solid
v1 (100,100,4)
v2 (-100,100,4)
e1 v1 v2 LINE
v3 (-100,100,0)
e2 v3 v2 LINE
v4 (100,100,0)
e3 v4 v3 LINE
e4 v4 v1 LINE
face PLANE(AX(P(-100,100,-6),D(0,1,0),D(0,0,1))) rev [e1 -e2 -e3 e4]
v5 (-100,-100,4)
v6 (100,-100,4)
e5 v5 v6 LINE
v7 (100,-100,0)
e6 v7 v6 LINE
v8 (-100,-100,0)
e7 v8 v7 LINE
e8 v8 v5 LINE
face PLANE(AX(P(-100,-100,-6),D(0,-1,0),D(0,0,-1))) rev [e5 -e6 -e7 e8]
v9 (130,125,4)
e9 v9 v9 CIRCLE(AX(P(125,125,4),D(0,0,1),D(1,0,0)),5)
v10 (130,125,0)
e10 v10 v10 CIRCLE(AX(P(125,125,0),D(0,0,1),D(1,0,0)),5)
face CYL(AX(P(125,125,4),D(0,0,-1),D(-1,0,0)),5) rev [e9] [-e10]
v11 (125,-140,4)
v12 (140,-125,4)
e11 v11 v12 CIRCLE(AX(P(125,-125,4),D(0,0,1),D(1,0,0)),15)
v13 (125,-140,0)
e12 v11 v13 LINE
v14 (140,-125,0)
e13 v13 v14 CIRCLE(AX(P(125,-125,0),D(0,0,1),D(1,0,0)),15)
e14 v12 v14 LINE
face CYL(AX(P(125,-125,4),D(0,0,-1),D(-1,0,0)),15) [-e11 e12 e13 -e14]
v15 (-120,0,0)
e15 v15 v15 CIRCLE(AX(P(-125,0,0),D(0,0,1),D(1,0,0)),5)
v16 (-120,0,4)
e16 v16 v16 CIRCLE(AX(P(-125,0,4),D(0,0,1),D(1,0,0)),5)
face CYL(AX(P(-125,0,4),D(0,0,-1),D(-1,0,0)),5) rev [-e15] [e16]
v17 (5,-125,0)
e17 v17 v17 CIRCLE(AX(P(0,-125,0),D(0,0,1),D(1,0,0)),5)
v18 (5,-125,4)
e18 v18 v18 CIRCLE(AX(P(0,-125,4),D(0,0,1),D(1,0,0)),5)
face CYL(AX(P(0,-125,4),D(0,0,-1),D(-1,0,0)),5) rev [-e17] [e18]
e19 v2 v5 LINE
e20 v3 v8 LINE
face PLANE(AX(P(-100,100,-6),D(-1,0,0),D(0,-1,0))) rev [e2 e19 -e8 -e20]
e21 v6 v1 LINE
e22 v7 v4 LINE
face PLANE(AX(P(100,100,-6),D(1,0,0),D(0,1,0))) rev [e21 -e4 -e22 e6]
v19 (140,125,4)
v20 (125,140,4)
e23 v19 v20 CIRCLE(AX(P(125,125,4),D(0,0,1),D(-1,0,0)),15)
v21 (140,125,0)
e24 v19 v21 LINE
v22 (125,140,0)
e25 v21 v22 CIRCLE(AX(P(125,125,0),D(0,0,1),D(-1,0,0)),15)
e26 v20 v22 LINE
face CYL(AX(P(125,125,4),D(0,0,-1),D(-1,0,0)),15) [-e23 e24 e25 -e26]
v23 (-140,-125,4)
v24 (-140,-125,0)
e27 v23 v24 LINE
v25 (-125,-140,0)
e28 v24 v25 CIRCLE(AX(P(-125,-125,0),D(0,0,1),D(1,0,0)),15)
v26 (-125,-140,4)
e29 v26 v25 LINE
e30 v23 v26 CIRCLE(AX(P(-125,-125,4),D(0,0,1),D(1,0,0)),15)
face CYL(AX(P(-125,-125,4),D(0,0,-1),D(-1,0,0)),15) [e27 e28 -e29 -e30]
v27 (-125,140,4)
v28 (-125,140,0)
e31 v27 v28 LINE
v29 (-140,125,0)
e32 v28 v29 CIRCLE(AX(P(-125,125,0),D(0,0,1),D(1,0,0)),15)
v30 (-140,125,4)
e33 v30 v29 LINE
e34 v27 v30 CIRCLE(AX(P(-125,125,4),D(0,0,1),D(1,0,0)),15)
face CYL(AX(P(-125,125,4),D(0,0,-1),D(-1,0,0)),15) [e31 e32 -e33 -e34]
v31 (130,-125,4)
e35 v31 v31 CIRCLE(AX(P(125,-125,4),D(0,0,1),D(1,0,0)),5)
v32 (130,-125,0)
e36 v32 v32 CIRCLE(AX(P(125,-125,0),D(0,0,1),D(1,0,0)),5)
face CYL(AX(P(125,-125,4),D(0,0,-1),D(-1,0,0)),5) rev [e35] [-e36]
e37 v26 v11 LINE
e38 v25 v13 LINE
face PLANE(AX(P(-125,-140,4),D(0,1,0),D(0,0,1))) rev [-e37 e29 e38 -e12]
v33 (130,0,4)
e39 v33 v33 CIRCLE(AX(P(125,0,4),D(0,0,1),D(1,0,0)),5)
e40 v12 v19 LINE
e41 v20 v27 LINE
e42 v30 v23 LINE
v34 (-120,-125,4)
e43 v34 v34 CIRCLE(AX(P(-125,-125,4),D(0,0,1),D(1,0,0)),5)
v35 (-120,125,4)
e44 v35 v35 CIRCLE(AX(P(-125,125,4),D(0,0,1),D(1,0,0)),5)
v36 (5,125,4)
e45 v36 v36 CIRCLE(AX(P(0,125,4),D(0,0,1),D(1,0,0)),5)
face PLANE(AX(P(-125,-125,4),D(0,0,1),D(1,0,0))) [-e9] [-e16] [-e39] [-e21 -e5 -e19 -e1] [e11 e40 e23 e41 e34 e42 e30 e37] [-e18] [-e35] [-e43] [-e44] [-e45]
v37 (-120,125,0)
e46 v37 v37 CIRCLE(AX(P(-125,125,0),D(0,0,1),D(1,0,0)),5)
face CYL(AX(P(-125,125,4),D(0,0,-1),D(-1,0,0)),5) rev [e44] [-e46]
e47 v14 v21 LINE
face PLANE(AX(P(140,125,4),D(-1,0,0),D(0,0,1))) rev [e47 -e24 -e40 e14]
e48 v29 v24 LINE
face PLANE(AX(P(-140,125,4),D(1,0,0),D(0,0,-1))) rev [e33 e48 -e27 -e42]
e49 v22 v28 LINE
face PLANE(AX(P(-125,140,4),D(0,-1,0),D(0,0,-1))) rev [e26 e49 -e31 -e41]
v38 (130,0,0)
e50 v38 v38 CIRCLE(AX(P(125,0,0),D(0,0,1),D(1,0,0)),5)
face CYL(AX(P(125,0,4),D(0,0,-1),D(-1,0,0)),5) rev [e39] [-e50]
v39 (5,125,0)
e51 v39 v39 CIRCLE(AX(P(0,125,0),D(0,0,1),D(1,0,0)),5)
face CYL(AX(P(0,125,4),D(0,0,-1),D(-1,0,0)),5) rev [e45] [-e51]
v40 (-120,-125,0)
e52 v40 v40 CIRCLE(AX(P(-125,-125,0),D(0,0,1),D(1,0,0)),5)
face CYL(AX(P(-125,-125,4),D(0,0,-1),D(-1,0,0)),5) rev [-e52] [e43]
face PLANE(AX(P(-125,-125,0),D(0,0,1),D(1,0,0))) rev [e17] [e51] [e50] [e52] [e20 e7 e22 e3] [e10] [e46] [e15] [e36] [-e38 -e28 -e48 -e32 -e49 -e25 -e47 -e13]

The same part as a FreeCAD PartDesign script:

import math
import FreeCAD as App
import Part
import Sketcher
Q = App.Units.Quantity

doc = App.newDocument("Part")
body = doc.addObject("PartDesign::Body", "Body")

# Sketch on XY plane
sketch1 = body.newObject("Sketcher::SketchObject", "Sketch")
sketch1.AttachmentSupport = (doc.getObject("XY_Plane"), [""])
sketch1.MapMode = "FlatFace"
sketch1.addGeometry([
    Part.LineSegment(App.Vector(125, 140, 0), App.Vector(-125, 140, 0)),  # 0
    Part.ArcOfCircle(Part.Circle(App.Vector(-125, 125, 0), App.Vector(0, 0, 1), 15), math.radians(90), math.radians(180)),  # 1
    Part.LineSegment(App.Vector(-140, 125, 0), App.Vector(-140, -125, 0)),  # 2
    Part.ArcOfCircle(Part.Circle(App.Vector(-125, -125, 0), App.Vector(0, 0, 1), 15), math.radians(180), math.radians(270)),  # 3
    Part.LineSegment(App.Vector(-125, -140, 0), App.Vector(125, -140, 0)),  # 4
    Part.ArcOfCircle(Part.Circle(App.Vector(125, -125, 0), App.Vector(0, 0, 1), 15), math.radians(-90), math.radians(0)),  # 5
    Part.LineSegment(App.Vector(140, -125, 0), App.Vector(140, 125, 0)),  # 6
    Part.ArcOfCircle(Part.Circle(App.Vector(125, 125, 0), App.Vector(0, 0, 1), 15), math.radians(0), math.radians(90)),  # 7
    Part.Circle(App.Vector(125, -125, 0), App.Vector(0, 0, 1), 5),  # 8
    Part.Circle(App.Vector(0, -125, 0), App.Vector(0, 0, 1), 5),  # 9
    Part.Circle(App.Vector(-125, -125, 0), App.Vector(0, 0, 1), 5),  # 10
    Part.Circle(App.Vector(125, 0, 0), App.Vector(0, 0, 1), 5),  # 11
    Part.Circle(App.Vector(125, 125, 0), App.Vector(0, 0, 1), 5),  # 12
    Part.Circle(App.Vector(0, 0, 0), App.Vector(0, 0, 1), 4),  # 13
    Part.Circle(App.Vector(-125, 0, 0), App.Vector(0, 0, 1), 5),  # 14
    Part.Circle(App.Vector(0, 125, 0), App.Vector(0, 0, 1), 5),  # 15
    Part.Circle(App.Vector(-125, 125, 0), App.Vector(0, 0, 1), 5),  # 16
], False)
sketch1.addConstraint([
    Sketcher.Constraint("Tangent", 0, 2, 1, 1),
    Sketcher.Constraint("Tangent", 1, 2, 2, 1),
    Sketcher.Constraint("Tangent", 2, 2, 3, 1),
    Sketcher.Constraint("Tangent", 3, 2, 4, 1),
    Sketcher.Constraint("Tangent", 4, 2, 5, 1),
    Sketcher.Constraint("Tangent", 5, 2, 6, 1),
    Sketcher.Constraint("Tangent", 6, 2, 7, 1),
    Sketcher.Constraint("Tangent", 7, 2, 0, 1),
    Sketcher.Constraint("Horizontal", 0),
    Sketcher.Constraint("Vertical", 2),
    Sketcher.Constraint("Horizontal", 4),
    Sketcher.Constraint("Vertical", 6),
    Sketcher.Constraint("Coincident", 13, 3, -1, 1),
    Sketcher.Constraint("Coincident", 8, 3, 5, 3),
    Sketcher.Constraint("Coincident", 10, 3, 3, 3),
    Sketcher.Constraint("Coincident", 12, 3, 7, 3),
    Sketcher.Constraint("Coincident", 16, 3, 1, 3),
    Sketcher.Constraint("Equal", 1, 3),
    Sketcher.Constraint("Equal", 3, 5),
    Sketcher.Constraint("Equal", 5, 7),
    Sketcher.Constraint("Equal", 8, 9),
    Sketcher.Constraint("Equal", 9, 10),
    Sketcher.Constraint("Equal", 10, 11),
    Sketcher.Constraint("Equal", 11, 12),
    Sketcher.Constraint("Equal", 12, 14),
    Sketcher.Constraint("Equal", 14, 15),
    Sketcher.Constraint("Equal", 15, 16),
    Sketcher.Constraint("Symmetric", 1, 3, 5, 3, -1, 1),
    Sketcher.Constraint("Symmetric", 11, 3, 14, 3, -1, 1),
    Sketcher.Constraint("Symmetric", 9, 3, 15, 3, -1, 1),
    Sketcher.Constraint("PointOnObject", 9, 3, -2),
    Sketcher.Constraint("PointOnObject", 11, 3, -1),
    Sketcher.Constraint("Horizontal", 8, 3, 9, 3),
    Sketcher.Constraint("Vertical", 8, 3, 11, 3),
    Sketcher.Constraint("Equal", 4, 2),
    Sketcher.Constraint("Diameter", 8, Q("10 mm")),
    Sketcher.Constraint("Diameter", 13, Q("8 mm")),
    Sketcher.Constraint("Radius", 1, Q("15 mm")),
    Sketcher.Constraint("DistanceX", 0, 2, 0, 1, Q("250 mm")),
])
pad1 = body.newObject("PartDesign::Pad", "Pad")
pad1.Profile = sketch1
pad1.Length = 4

# Sketch on XY plane
sketch2 = body.newObject("Sketcher::SketchObject", "Sketch001")
sketch2.AttachmentSupport = (doc.getObject("XY_Plane"), [""])
sketch2.MapMode = "FlatFace"
sketch2.AttachmentOffset = App.Placement(App.Vector(0, 0, 4), App.Rotation())
sketch2.addGeometry([
    Part.LineSegment(App.Vector(-100, 100, 0), App.Vector(-100, -100, 0)),
    Part.LineSegment(App.Vector(-100, -100, 0), App.Vector(100, -100, 0)),
    Part.LineSegment(App.Vector(100, -100, 0), App.Vector(100, 100, 0)),
    Part.LineSegment(App.Vector(100, 100, 0), App.Vector(-100, 100, 0)),
], False)
sketch2.addConstraint([
    Sketcher.Constraint("Coincident", 0, 2, 1, 1),
    Sketcher.Constraint("Coincident", 1, 2, 2, 1),
    Sketcher.Constraint("Coincident", 2, 2, 3, 1),
    Sketcher.Constraint("Coincident", 3, 2, 0, 1),
    Sketcher.Constraint("Vertical", 0),
    Sketcher.Constraint("Horizontal", 1),
    Sketcher.Constraint("Vertical", 2),
    Sketcher.Constraint("Horizontal", 3),
    Sketcher.Constraint("Symmetric", 0, 2, 2, 2, -1, 1),
    Sketcher.Constraint("Equal", 3, 0),
    Sketcher.Constraint("DistanceX", 1, 1, 1, 2, Q("200 mm")),
])
pocket1 = body.newObject("PartDesign::Pocket", "Pocket")
pocket1.Profile = sketch2
pocket1.Length = 10

doc.recompute()
